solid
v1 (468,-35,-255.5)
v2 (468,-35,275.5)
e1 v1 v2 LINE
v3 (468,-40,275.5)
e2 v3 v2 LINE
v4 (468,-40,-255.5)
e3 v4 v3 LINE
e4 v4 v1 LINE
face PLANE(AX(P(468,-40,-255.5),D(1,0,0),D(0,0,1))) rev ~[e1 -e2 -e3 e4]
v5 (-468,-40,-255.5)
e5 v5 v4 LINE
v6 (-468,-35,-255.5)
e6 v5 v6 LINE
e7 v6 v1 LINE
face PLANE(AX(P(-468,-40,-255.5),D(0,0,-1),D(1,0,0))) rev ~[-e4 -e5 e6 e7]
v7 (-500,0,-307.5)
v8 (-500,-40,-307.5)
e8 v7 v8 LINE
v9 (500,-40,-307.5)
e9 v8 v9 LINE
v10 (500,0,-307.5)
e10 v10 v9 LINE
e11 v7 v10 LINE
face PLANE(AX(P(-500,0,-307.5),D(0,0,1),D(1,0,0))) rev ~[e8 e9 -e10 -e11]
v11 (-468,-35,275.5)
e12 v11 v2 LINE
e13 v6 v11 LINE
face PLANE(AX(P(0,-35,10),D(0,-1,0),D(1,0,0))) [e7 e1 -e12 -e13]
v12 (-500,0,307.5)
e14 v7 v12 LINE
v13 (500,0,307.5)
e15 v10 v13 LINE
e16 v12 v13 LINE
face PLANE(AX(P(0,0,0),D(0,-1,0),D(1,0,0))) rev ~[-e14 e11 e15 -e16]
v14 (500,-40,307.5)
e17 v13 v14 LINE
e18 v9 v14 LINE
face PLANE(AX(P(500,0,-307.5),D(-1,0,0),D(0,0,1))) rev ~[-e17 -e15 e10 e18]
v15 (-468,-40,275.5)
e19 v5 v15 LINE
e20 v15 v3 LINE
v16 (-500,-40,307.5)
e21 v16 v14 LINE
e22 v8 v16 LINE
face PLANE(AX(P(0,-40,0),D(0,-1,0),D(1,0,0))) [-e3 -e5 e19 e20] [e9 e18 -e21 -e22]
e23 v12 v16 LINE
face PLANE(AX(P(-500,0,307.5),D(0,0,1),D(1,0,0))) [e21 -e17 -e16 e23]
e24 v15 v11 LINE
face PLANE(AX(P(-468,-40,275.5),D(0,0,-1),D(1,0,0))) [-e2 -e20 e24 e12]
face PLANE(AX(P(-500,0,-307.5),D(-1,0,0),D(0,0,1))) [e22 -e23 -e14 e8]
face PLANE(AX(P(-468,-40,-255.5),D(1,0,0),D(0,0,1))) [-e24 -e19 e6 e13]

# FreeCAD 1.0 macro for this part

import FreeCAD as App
import Part
import Sketcher
Q = App.Units.Quantity

doc = App.newDocument("Part")
params = doc.addObject("Spreadsheet::Sheet", "Params")
for row, (alias, value) in enumerate([
    ("sketch1_width", "1000 mm"),
    ("sketch1_height", "615 mm"),
    ("pad1_length", "40 mm"),
    ("sketch2_width", "936 mm"),
    ("sketch2_height", "531 mm"),
    ("pocket1_length", "5 mm"),
], start=1):
    params.set(f"A{row}", alias)
    params.set(f"B{row}", "=" + value)
    params.setAlias(f"B{row}", alias)

body = doc.addObject("PartDesign::Body", "Body")

# Sketch on XZ plane
sketch1 = doc.addObject("Sketcher::SketchObject", "Sketch")
body.addObject(sketch1)
sketch1.AttachmentSupport = (doc.XZ_Plane, [""])
sketch1.MapMode = "FlatFace"
sketch1.addGeometry([
    Part.LineSegment(App.Vector(-500, 308, 0), App.Vector(-500, -308, 0)),
    Part.LineSegment(App.Vector(-500, -308, 0), App.Vector(500, -308, 0)),
    Part.LineSegment(App.Vector(500, -308, 0), App.Vector(500, 308, 0)),
    Part.LineSegment(App.Vector(500, 308, 0), App.Vector(-500, 308, 0)),
], False)
sketch1.addConstraint([
    Sketcher.Constraint("Coincident", 0, 2, 1, 1),
    Sketcher.Constraint("Coincident", 1, 2, 2, 1),
    Sketcher.Constraint("Coincident", 2, 2, 3, 1),
    Sketcher.Constraint("Coincident", 3, 2, 0, 1),
    Sketcher.Constraint("Vertical", 0),
    Sketcher.Constraint("Horizontal", 1),
    Sketcher.Constraint("Vertical", 2),
    Sketcher.Constraint("Horizontal", 3),
    Sketcher.Constraint("Symmetric", 0, 2, 2, 2, -1, 1),
    Sketcher.Constraint("DistanceX", 1, 1, 1, 2, Q("1000 mm")),
    Sketcher.Constraint("DistanceY", 0, 2, 0, 1, Q("615 mm")),
])
sketch1.setExpression("Constraints[9]", "Params.sketch1_width")
sketch1.setExpression("Constraints[10]", "Params.sketch1_height")
pad1 = doc.addObject("PartDesign::Pad", "Pad")
body.addObject(pad1)
pad1.Profile = sketch1
pad1.setExpression("Length", "Params.pad1_length")

# Sketch on XZ plane
sketch2 = doc.addObject("Sketcher::SketchObject", "Sketch001")
body.addObject(sketch2)
sketch2.AttachmentSupport = (doc.XZ_Plane, [""])
sketch2.MapMode = "FlatFace"
sketch2.AttachmentOffset = App.Placement(App.Vector(0, 0, 40), App.Rotation())
sketch2.addGeometry([
    Part.LineSegment(App.Vector(-468, 276, 0), App.Vector(-468, -256, 0)),
    Part.LineSegment(App.Vector(-468, -256, 0), App.Vector(468, -256, 0)),
    Part.LineSegment(App.Vector(468, -256, 0), App.Vector(468, 276, 0)),
    Part.LineSegment(App.Vector(468, 276, 0), App.Vector(-468, 276, 0)),
], False)
sketch2.addConstraint([
    Sketcher.Constraint("Coincident", 0, 2, 1, 1),
    Sketcher.Constraint("Coincident", 1, 2, 2, 1),
    Sketcher.Constraint("Coincident", 2, 2, 3, 1),
    Sketcher.Constraint("Coincident", 3, 2, 0, 1),
    Sketcher.Constraint("Vertical", 0),
    Sketcher.Constraint("Horizontal", 1),
    Sketcher.Constraint("Vertical", 2),
    Sketcher.Constraint("Horizontal", 3),
    Sketcher.Constraint("DistanceX", 1, 1, 1, 2, Q("936 mm")),
    Sketcher.Constraint("DistanceY", 0, 2, 0, 1, Q("531 mm")),
    Sketcher.Constraint("DistanceX", 0, 2, -1, 1, Q("468 mm")),
    Sketcher.Constraint("DistanceY", 0, 2, -1, 1, Q("255.5 mm")),
])
sketch2.setExpression("Constraints[8]", "Params.sketch2_width")
sketch2.setExpression("Constraints[9]", "Params.sketch2_height")
pocket1 = doc.addObject("PartDesign::Pocket", "Pocket")
body.addObject(pocket1)
pocket1.Profile = sketch2
pocket1.setExpression("Length", "Params.pocket1_length")

doc.recompute()
